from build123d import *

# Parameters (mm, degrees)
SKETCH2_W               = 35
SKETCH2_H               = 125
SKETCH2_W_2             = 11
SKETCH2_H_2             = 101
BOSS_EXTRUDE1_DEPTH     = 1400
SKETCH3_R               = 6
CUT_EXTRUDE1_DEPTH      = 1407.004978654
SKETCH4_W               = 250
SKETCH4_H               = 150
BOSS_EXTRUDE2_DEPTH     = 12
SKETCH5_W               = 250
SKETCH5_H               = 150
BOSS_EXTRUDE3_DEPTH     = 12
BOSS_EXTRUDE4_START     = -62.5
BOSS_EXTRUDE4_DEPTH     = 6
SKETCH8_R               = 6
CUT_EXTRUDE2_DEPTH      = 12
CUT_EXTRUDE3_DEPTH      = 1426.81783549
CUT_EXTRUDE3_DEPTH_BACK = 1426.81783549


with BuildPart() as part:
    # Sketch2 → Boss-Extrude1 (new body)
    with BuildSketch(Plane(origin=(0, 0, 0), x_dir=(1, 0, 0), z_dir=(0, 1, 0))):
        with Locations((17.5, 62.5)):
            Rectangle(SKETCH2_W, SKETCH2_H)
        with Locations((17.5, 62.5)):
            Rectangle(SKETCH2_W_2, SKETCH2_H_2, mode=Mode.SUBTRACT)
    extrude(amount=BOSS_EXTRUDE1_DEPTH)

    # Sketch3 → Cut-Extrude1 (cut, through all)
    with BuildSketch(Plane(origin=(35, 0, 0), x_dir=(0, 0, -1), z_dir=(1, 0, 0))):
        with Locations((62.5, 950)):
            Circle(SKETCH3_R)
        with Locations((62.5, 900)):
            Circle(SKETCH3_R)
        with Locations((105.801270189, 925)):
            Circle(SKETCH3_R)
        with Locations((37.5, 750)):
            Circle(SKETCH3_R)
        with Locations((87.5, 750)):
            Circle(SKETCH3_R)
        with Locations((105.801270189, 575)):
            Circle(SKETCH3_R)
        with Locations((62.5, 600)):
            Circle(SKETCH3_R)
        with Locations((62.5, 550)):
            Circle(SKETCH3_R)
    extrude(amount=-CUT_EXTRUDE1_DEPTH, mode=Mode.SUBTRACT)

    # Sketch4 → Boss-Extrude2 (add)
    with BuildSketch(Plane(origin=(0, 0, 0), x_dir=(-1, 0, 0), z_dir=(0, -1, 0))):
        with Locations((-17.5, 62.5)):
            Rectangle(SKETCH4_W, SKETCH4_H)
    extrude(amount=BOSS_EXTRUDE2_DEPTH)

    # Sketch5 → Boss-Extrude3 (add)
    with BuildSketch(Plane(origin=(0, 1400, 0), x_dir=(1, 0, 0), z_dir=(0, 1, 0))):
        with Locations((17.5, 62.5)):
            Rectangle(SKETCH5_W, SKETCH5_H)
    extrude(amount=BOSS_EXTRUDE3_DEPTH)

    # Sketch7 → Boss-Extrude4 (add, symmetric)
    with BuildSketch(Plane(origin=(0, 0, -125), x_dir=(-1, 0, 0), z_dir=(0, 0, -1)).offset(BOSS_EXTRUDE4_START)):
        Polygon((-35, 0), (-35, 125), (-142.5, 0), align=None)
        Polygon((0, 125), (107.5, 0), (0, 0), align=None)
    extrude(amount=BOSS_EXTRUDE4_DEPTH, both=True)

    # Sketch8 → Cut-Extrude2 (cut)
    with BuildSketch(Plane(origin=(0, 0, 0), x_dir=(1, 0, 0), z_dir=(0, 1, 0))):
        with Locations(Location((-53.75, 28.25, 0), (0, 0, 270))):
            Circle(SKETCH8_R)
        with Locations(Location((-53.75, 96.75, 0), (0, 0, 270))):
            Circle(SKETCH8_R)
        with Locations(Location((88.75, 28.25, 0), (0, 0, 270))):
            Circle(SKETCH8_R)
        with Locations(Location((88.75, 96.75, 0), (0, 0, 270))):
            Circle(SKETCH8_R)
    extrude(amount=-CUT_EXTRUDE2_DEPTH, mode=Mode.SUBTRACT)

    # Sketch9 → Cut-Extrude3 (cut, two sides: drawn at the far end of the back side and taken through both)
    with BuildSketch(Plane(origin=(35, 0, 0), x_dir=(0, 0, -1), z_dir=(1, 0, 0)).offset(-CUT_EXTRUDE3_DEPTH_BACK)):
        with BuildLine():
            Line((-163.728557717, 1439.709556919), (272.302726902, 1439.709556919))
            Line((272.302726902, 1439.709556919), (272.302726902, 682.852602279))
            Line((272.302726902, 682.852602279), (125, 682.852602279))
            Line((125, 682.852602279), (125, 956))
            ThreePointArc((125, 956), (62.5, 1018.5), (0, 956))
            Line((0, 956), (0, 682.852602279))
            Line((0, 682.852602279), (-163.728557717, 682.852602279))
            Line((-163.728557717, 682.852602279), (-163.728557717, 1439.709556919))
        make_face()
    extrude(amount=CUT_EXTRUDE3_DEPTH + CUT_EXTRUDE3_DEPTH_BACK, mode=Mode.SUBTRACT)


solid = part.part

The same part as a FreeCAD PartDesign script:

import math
import FreeCAD as App
import Part
import Sketcher
Q = App.Units.Quantity

doc = App.newDocument("Part")
body = doc.addObject("PartDesign::Body", "Body")

sketch1 = doc.addObject("Sketcher::SketchObject", "Sketch")
body.addObject(sketch1)
sketch1.AttachmentSupport = (doc.XZ_Plane, [""])
sketch1.MapMode = "FlatFace"
sketch1.addGeometry(Part.LineSegment(App.Vector(0, -125, 0), App.Vector(0, 0, 0)), False)
sketch1.addGeometry(Part.LineSegment(App.Vector(0, 0, 0), App.Vector(35, 0, 0)), False)
sketch1.addGeometry(Part.LineSegment(App.Vector(35, 0, 0), App.Vector(35, -125, 0)), False)
sketch1.addGeometry(Part.LineSegment(App.Vector(35, -125, 0), App.Vector(0, -125, 0)), False)
sketch1.addGeometry(Part.LineSegment(App.Vector(23, -12, 0), App.Vector(12, -12, 0)), False)
sketch1.addGeometry(Part.LineSegment(App.Vector(12, -12, 0), App.Vector(12, -113, 0)), False)
sketch1.addGeometry(Part.LineSegment(App.Vector(12, -113, 0), App.Vector(23, -113, 0)), False)
sketch1.addGeometry(Part.LineSegment(App.Vector(23, -113, 0), App.Vector(23, -12, 0)), False)
sketch1.addConstraint(Sketcher.Constraint("Coincident", 0, 2, 1, 1))
sketch1.addConstraint(Sketcher.Constraint("Coincident", 1, 2, 2, 1))
sketch1.addConstraint(Sketcher.Constraint("Coincident", 2, 2, 3, 1))
sketch1.addConstraint(Sketcher.Constraint("Coincident", 3, 2, 0, 1))
sketch1.addConstraint(Sketcher.Constraint("Coincident", 4, 2, 5, 1))
sketch1.addConstraint(Sketcher.Constraint("Coincident", 5, 2, 6, 1))
sketch1.addConstraint(Sketcher.Constraint("Coincident", 6, 2, 7, 1))
sketch1.addConstraint(Sketcher.Constraint("Coincident", 7, 2, 4, 1))
sketch1.addConstraint(Sketcher.Constraint("Vertical", 0))
sketch1.addConstraint(Sketcher.Constraint("Horizontal", 1))
sketch1.addConstraint(Sketcher.Constraint("Vertical", 2))
sketch1.addConstraint(Sketcher.Constraint("Horizontal", 3))
sketch1.addConstraint(Sketcher.Constraint("Horizontal", 4))
sketch1.addConstraint(Sketcher.Constraint("Vertical", 5))
sketch1.addConstraint(Sketcher.Constraint("Horizontal", 6))
sketch1.addConstraint(Sketcher.Constraint("Vertical", 7))
sketch1.addConstraint(Sketcher.Constraint("Coincident", 0, 2, -1, 1))
sketch1.addConstraint(Sketcher.Constraint("DistanceX", 1, 1, 1, 2, Q("35 mm")))
sketch1.addConstraint(Sketcher.Constraint("DistanceX", 4, 2, 4, 1, Q("11 mm")))
sketch1.addConstraint(Sketcher.Constraint("DistanceY", 0, 1, 0, 2, Q("125 mm")))
sketch1.addConstraint(Sketcher.Constraint("DistanceY", 5, 2, 5, 1, Q("101 mm")))
sketch1.addConstraint(Sketcher.Constraint("DistanceX", -1, 1, 4, 2, Q("12 mm")))
sketch1.addConstraint(Sketcher.Constraint("DistanceY", 4, 2, -1, 1, Q("12 mm")))
pad1 = doc.addObject("PartDesign::Pad", "Pad")
body.addObject(pad1)
pad1.Profile = sketch1
pad1.Length = 1400
pad1.Reversed = True

sketch2 = doc.addObject("Sketcher::SketchObject", "Sketch001")
body.addObject(sketch2)
sketch2.AttachmentSupport = (doc.YZ_Plane, [""])
sketch2.MapMode = "FlatFace"
sketch2.AttachmentOffset = App.Placement(App.Vector(0, 0, 35), App.Rotation())
sketch2.addGeometry(Part.Circle(App.Vector(950, -62, 0), App.Vector(0, 0, 1), 6), False)
sketch2.addGeometry(Part.Circle(App.Vector(900, -62, 0), App.Vector(0, 0, 1), 6), False)
sketch2.addGeometry(Part.Circle(App.Vector(925, -106, 0), App.Vector(0, 0, 1), 6), False)
sketch2.addGeometry(Part.Circle(App.Vector(750, -38, 0), App.Vector(0, 0, 1), 6), False)
sketch2.addGeometry(Part.Circle(App.Vector(750, -88, 0), App.Vector(0, 0, 1), 6), False)
sketch2.addGeometry(Part.Circle(App.Vector(575, -106, 0), App.Vector(0, 0, 1), 6), False)
sketch2.addGeometry(Part.Circle(App.Vector(600, -62, 0), App.Vector(0, 0, 1), 6), False)
sketch2.addGeometry(Part.Circle(App.Vector(550, -62, 0), App.Vector(0, 0, 1), 6), False)
sketch2.addConstraint(Sketcher.Constraint("Equal", 0, 1))
sketch2.addConstraint(Sketcher.Constraint("Equal", 1, 2))
sketch2.addConstraint(Sketcher.Constraint("Equal", 2, 3))
sketch2.addConstraint(Sketcher.Constraint("Equal", 3, 4))
sketch2.addConstraint(Sketcher.Constraint("Equal", 4, 5))
sketch2.addConstraint(Sketcher.Constraint("Equal", 5, 6))
sketch2.addConstraint(Sketcher.Constraint("Equal", 6, 7))
sketch2.addConstraint(Sketcher.Constraint("Horizontal", 0, 3, 1, 3))
sketch2.addConstraint(Sketcher.Constraint("Horizontal", 2, 3, 5, 3))
sketch2.addConstraint(Sketcher.Constraint("Horizontal", 1, 3, 6, 3))
sketch2.addConstraint(Sketcher.Constraint("Horizontal", 6, 3, 7, 3))
sketch2.addConstraint(Sketcher.Constraint("Vertical", 3, 3, 4, 3))
sketch2.addConstraint(Sketcher.Constraint("Diameter", 0, Q("12 mm")))
sketch2.addConstraint(Sketcher.Constraint("DistanceX", -1, 1, 0, 3, Q("950 mm")))
sketch2.addConstraint(Sketcher.Constraint("DistanceX", -1, 1, 1, 3, Q("900 mm")))
sketch2.addConstraint(Sketcher.Constraint("DistanceX", -1, 1, 2, 3, Q("925 mm")))
sketch2.addConstraint(Sketcher.Constraint("DistanceX", -1, 1, 3, 3, Q("750 mm")))
sketch2.addConstraint(Sketcher.Constraint("DistanceX", -1, 1, 5, 3, Q("575 mm")))
sketch2.addConstraint(Sketcher.Constraint("DistanceX", -1, 1, 6, 3, Q("600 mm")))
sketch2.addConstraint(Sketcher.Constraint("DistanceX", -1, 1, 7, 3, Q("550 mm")))
sketch2.addConstraint(Sketcher.Constraint("DistanceY", 1, 3, 3, 3, Q("25 mm")))
sketch2.addConstraint(Sketcher.Constraint("DistanceY", 4, 3, 3, 3, Q("50 mm")))
sketch2.addConstraint(Sketcher.Constraint("DistanceY", 0, 3, -1, 1, Q("62.5 mm")))
sketch2.addConstraint(Sketcher.Constraint("DistanceY", 2, 3, -1, 1, Q("105.80127 mm")))
pocket1 = doc.addObject("PartDesign::Pocket", "Pocket")
body.addObject(pocket1)
pocket1.Profile = sketch2
pocket1.Type = "ThroughAll"

sketch3 = doc.addObject("Sketcher::SketchObject", "Sketch002")
body.addObject(sketch3)
sketch3.AttachmentSupport = (doc.XZ_Plane, [""])
sketch3.MapMode = "FlatFace"
sketch3.addGeometry(Part.LineSegment(App.Vector(142, -138, 0), App.Vector(142, 12, 0)), False)
sketch3.addGeometry(Part.LineSegment(App.Vector(142, 12, 0), App.Vector(-108, 12, 0)), False)
sketch3.addGeometry(Part.LineSegment(App.Vector(-108, 12, 0), App.Vector(-108, -138, 0)), False)
sketch3.addGeometry(Part.LineSegment(App.Vector(-108, -138, 0), App.Vector(142, -138, 0)), False)
sketch3.addConstraint(Sketcher.Constraint("Coincident", 0, 2, 1, 1))
sketch3.addConstraint(Sketcher.Constraint("Coincident", 1, 2, 2, 1))
sketch3.addConstraint(Sketcher.Constraint("Coincident", 2, 2, 3, 1))
sketch3.addConstraint(Sketcher.Constraint("Coincident", 3, 2, 0, 1))
sketch3.addConstraint(Sketcher.Constraint("Vertical", 0))
sketch3.addConstraint(Sketcher.Constraint("Horizontal", 1))
sketch3.addConstraint(Sketcher.Constraint("Vertical", 2))
sketch3.addConstraint(Sketcher.Constraint("Horizontal", 3))
sketch3.addConstraint(Sketcher.Constraint("DistanceX", 1, 2, 1, 1, Q("250 mm")))
sketch3.addConstraint(Sketcher.Constraint("DistanceY", 0, 1, 0, 2, Q("150 mm")))
sketch3.addConstraint(Sketcher.Constraint("DistanceX", -1, 1, 0, 2, Q("142.5 mm")))
sketch3.addConstraint(Sketcher.Constraint("DistanceY", -1, 1, 0, 2, Q("12.5 mm")))
pad2 = doc.addObject("PartDesign::Pad", "Pad001")
body.addObject(pad2)
pad2.Profile = sketch3
pad2.Length = 12

sketch4 = doc.addObject("Sketcher::SketchObject", "Sketch003")
body.addObject(sketch4)
sketch4.AttachmentSupport = (doc.XZ_Plane, [""])
sketch4.MapMode = "FlatFace"
sketch4.AttachmentOffset = App.Placement(App.Vector(0, 0, -1400), App.Rotation())
sketch4.addGeometry(Part.LineSegment(App.Vector(-108, -138, 0), App.Vector(-108, 12, 0)), False)
sketch4.addGeometry(Part.LineSegment(App.Vector(-108, 12, 0), App.Vector(142, 12, 0)), False)
sketch4.addGeometry(Part.LineSegment(App.Vector(142, 12, 0), App.Vector(142, -138, 0)), False)
sketch4.addGeometry(Part.LineSegment(App.Vector(142, -138, 0), App.Vector(-108, -138, 0)), False)
sketch4.addConstraint(Sketcher.Constraint("Coincident", 0, 2, 1, 1))
sketch4.addConstraint(Sketcher.Constraint("Coincident", 1, 2, 2, 1))
sketch4.addConstraint(Sketcher.Constraint("Coincident", 2, 2, 3, 1))
sketch4.addConstraint(Sketcher.Constraint("Coincident", 3, 2, 0, 1))
sketch4.addConstraint(Sketcher.Constraint("Vertical", 0))
sketch4.addConstraint(Sketcher.Constraint("Horizontal", 1))
sketch4.addConstraint(Sketcher.Constraint("Vertical", 2))
sketch4.addConstraint(Sketcher.Constraint("Horizontal", 3))
sketch4.addConstraint(Sketcher.Constraint("DistanceX", 1, 1, 1, 2, Q("250 mm")))
sketch4.addConstraint(Sketcher.Constraint("DistanceY", 0, 1, 0, 2, Q("150 mm")))
sketch4.addConstraint(Sketcher.Constraint("DistanceX", 0, 2, -1, 1, Q("107.5 mm")))
sketch4.addConstraint(Sketcher.Constraint("DistanceY", -1, 1, 0, 2, Q("12.5 mm")))
pad3 = doc.addObject("PartDesign::Pad", "Pad002")
body.addObject(pad3)
pad3.Profile = sketch4
pad3.Length = 12
pad3.Reversed = True

sketch5 = doc.addObject("Sketcher::SketchObject", "Sketch004")
body.addObject(sketch5)
sketch5.AttachmentSupport = (doc.XY_Plane, [""])
sketch5.MapMode = "FlatFace"
sketch5.AttachmentOffset = App.Placement(App.Vector(0, 0, -62.5), App.Rotation())
sketch5.addGeometry(Part.LineSegment(App.Vector(35, 0, 0), App.Vector(35, 125, 0)), False)
sketch5.addGeometry(Part.LineSegment(App.Vector(35, 125, 0), App.Vector(142, 0, 0)), False)
sketch5.addGeometry(Part.LineSegment(App.Vector(142, 0, 0), App.Vector(35, 0, 0)), False)
sketch5.addGeometry(Part.LineSegment(App.Vector(-108, 0, 0), App.Vector(0, 125, 0)), False)
sketch5.addGeometry(Part.LineSegment(App.Vector(0, 125, 0), App.Vector(0, 0, 0)), False)
sketch5.addGeometry(Part.LineSegment(App.Vector(0, 0, 0), App.Vector(-108, 0, 0)), False)
sketch5.addConstraint(Sketcher.Constraint("Coincident", 0, 2, 1, 1))
sketch5.addConstraint(Sketcher.Constraint("Coincident", 1, 2, 2, 1))
sketch5.addConstraint(Sketcher.Constraint("Coincident", 2, 2, 0, 1))
sketch5.addConstraint(Sketcher.Constraint("Coincident", 3, 2, 4, 1))
sketch5.addConstraint(Sketcher.Constraint("Coincident", 4, 2, 5, 1))
sketch5.addConstraint(Sketcher.Constraint("Coincident", 5, 2, 3, 1))
sketch5.addConstraint(Sketcher.Constraint("Vertical", 0))
sketch5.addConstraint(Sketcher.Constraint("Horizontal", 2))
sketch5.addConstraint(Sketcher.Constraint("Vertical", 4))
sketch5.addConstraint(Sketcher.Constraint("Horizontal", 5))
sketch5.addConstraint(Sketcher.Constraint("Coincident", 4, 2, -1, 1))
sketch5.addConstraint(Sketcher.Constraint("PointOnObject", 1, 2, -1))
sketch5.addConstraint(Sketcher.Constraint("Horizontal", 0, 2, 3, 2))
sketch5.addConstraint(Sketcher.Constraint("Equal", 2, 5))
sketch5.addConstraint(Sketcher.Constraint("DistanceY", 0, 1, 0, 2, Q("125 mm")))
sketch5.addConstraint(Sketcher.Constraint("DistanceX", 2, 2, 2, 1, Q("107.5 mm")))
sketch5.addConstraint(Sketcher.Constraint("DistanceX", -1, 1, 0, 2, Q("35 mm")))
pad4 = doc.addObject("PartDesign::Pad", "Pad003")
body.addObject(pad4)
pad4.Profile = sketch5
pad4.Length = 12
pad4.Midplane = True

sketch6 = doc.addObject("Sketcher::SketchObject", "Sketch005")
body.addObject(sketch6)
sketch6.AttachmentSupport = (doc.XZ_Plane, [""])
sketch6.MapMode = "FlatFace"
sketch6.addGeometry(Part.Circle(App.Vector(-54, -28, 0), App.Vector(0, 0, 1), 6), False)
sketch6.addGeometry(Part.Circle(App.Vector(-54, -97, 0), App.Vector(0, 0, 1), 6), False)
sketch6.addGeometry(Part.Circle(App.Vector(89, -28, 0), App.Vector(0, 0, 1), 6), False)
sketch6.addGeometry(Part.Circle(App.Vector(89, -97, 0), App.Vector(0, 0, 1), 6), False)
sketch6.addConstraint(Sketcher.Constraint("Equal", 0, 1))
sketch6.addConstraint(Sketcher.Constraint("Equal", 1, 2))
sketch6.addConstraint(Sketcher.Constraint("Equal", 2, 3))
sketch6.addConstraint(Sketcher.Constraint("Horizontal", 0, 3, 2, 3))
sketch6.addConstraint(Sketcher.Constraint("Horizontal", 1, 3, 3, 3))
sketch6.addConstraint(Sketcher.Constraint("Vertical", 0, 3, 1, 3))
sketch6.addConstraint(Sketcher.Constraint("Vertical", 2, 3, 3, 3))
sketch6.addConstraint(Sketcher.Constraint("Diameter", 0, Q("12 mm")))
sketch6.addConstraint(Sketcher.Constraint("DistanceY", 1, 3, 0, 3, Q("68.5 mm")))
sketch6.addConstraint(Sketcher.Constraint("DistanceX", 0, 3, 2, 3, Q("142.5 mm")))
sketch6.addConstraint(Sketcher.Constraint("DistanceX", 0, 3, -1, 1, Q("53.75 mm")))
sketch6.addConstraint(Sketcher.Constraint("DistanceY", 0, 3, -1, 1, Q("28.25 mm")))
pocket2 = doc.addObject("PartDesign::Pocket", "Pocket001")
body.addObject(pocket2)
pocket2.Profile = sketch6
pocket2.Length = 12
pocket2.Reversed = True

sketch7 = doc.addObject("Sketcher::SketchObject", "Sketch006")
body.addObject(sketch7)
sketch7.AttachmentSupport = (doc.YZ_Plane, [""])
sketch7.MapMode = "FlatFace"
sketch7.AttachmentOffset = App.Placement(App.Vector(0, 0, 35), App.Rotation())
sketch7.addGeometry(Part.LineSegment(App.Vector(1440, -272, 0), App.Vector(1440, 164, 0)), False)
sketch7.addGeometry(Part.LineSegment(App.Vector(1440, 164, 0), App.Vector(683, 164, 0)), False)
sketch7.addGeometry(Part.LineSegment(App.Vector(683, 164, 0), App.Vector(683, 0, 0)), False)
sketch7.addGeometry(Part.LineSegment(App.Vector(683, 0, 0), App.Vector(956, 0, 0)), False)
sketch7.addGeometry(Part.ArcOfCircle(Part.Circle(App.Vector(956, -62, 0), App.Vector(0, 0, 1), 62), math.radians(-90), math.radians(90)), False)
sketch7.addGeometry(Part.LineSegment(App.Vector(956, -125, 0), App.Vector(683, -125, 0)), False)
sketch7.addGeometry(Part.LineSegment(App.Vector(683, -125, 0), App.Vector(683, -272, 0)), False)
sketch7.addGeometry(Part.LineSegment(App.Vector(683, -272, 0), App.Vector(1440, -272, 0)), False)
sketch7.addConstraint(Sketcher.Constraint("Coincident", 0, 2, 1, 1))
sketch7.addConstraint(Sketcher.Constraint("Coincident", 1, 2, 2, 1))
sketch7.addConstraint(Sketcher.Constraint("Coincident", 2, 2, 3, 1))
sketch7.addConstraint(Sketcher.Constraint("Tangent", 3, 2, 4, 2))
sketch7.addConstraint(Sketcher.Constraint("Tangent", 4, 1, 5, 1))
sketch7.addConstraint(Sketcher.Constraint("Coincident", 5, 2, 6, 1))
sketch7.addConstraint(Sketcher.Constraint("Coincident", 6, 2, 7, 1))
sketch7.addConstraint(Sketcher.Constraint("Coincident", 7, 2, 0, 1))
sketch7.addConstraint(Sketcher.Constraint("Vertical", 0))
sketch7.addConstraint(Sketcher.Constraint("Horizontal", 1))
sketch7.addConstraint(Sketcher.Constraint("Vertical", 2))
sketch7.addConstraint(Sketcher.Constraint("Horizontal", 3))
sketch7.addConstraint(Sketcher.Constraint("Horizontal", 5))
sketch7.addConstraint(Sketcher.Constraint("Vertical", 6))
sketch7.addConstraint(Sketcher.Constraint("Horizontal", 7))
sketch7.addConstraint(Sketcher.Constraint("PointOnObject", 2, 2, -1))
sketch7.addConstraint(Sketcher.Constraint("Vertical", 2, 2, 5, 2))
sketch7.addConstraint(Sketcher.Constraint("Radius", 4, Q("62.5 mm")))
sketch7.addConstraint(Sketcher.Constraint("DistanceX", -1, 1, 4, 3, Q("956 mm")))
sketch7.addConstraint(Sketcher.Constraint("DistanceX", 1, 2, 1, 1, Q("756.856955 mm")))
sketch7.addConstraint(Sketcher.Constraint("DistanceX", 3, 1, 3, 2, Q("273.147398 mm")))
sketch7.addConstraint(Sketcher.Constraint("DistanceY", 0, 1, 0, 2, Q("436.031285 mm")))
sketch7.addConstraint(Sketcher.Constraint("DistanceY", 2, 2, 2, 1, Q("163.728558 mm")))
pocket3 = doc.addObject("PartDesign::Pocket", "Pocket002")
body.addObject(pocket3)
pocket3.Profile = sketch7
pocket3.Type = "ThroughAll"
pocket3.Midplane = True

doc.recompute()
